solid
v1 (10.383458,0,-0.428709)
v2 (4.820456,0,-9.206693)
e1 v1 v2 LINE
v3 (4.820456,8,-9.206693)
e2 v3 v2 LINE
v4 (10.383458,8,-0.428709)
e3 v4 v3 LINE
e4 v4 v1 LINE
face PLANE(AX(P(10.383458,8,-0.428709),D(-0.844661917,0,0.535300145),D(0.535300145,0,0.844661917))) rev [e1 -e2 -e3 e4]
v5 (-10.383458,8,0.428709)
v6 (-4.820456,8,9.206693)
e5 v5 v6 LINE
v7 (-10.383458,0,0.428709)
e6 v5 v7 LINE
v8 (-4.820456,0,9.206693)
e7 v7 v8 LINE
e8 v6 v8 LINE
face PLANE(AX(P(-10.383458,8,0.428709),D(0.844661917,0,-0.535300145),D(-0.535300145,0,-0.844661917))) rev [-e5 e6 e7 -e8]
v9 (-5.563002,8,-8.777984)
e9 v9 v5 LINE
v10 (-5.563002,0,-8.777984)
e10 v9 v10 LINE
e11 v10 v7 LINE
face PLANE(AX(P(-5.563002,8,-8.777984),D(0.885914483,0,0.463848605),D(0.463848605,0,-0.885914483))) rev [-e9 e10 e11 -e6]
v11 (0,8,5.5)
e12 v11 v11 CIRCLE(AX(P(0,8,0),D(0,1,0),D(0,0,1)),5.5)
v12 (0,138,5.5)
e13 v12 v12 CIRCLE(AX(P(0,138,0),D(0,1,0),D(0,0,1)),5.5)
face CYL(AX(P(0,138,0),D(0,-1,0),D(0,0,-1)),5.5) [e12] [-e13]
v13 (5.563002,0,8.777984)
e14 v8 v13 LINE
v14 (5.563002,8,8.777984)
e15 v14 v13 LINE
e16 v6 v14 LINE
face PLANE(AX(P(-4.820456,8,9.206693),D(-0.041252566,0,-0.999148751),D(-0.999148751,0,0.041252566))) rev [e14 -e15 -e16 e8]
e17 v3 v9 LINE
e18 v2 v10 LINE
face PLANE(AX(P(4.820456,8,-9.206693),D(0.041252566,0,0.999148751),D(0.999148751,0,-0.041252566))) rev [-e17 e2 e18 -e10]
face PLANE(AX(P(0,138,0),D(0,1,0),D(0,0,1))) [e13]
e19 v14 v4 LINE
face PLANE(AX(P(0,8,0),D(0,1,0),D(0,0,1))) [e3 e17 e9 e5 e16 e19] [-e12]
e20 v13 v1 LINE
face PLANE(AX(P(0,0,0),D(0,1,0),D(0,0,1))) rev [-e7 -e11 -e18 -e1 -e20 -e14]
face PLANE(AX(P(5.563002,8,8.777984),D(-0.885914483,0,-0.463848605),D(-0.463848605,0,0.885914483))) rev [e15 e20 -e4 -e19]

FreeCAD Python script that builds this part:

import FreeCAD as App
import Part
import Sketcher
Q = App.Units.Quantity

doc = App.newDocument("Part")
body = doc.addObject("PartDesign::Body", "Body")

# Sketch on XZ plane
sketch1 = body.newObject("Sketcher::SketchObject", "Sketch")
sketch1.AttachmentSupport = (doc.getObject("XZ_Plane"), [""])
sketch1.MapMode = "FlatFace"
sketch1.addGeometry([
    Part.LineSegment(App.Vector(-6, -9, 0), App.Vector(-10, 0, 0)),  # 0
    Part.LineSegment(App.Vector(-10, 0, 0), App.Vector(-5, 9, 0)),  # 1
    Part.LineSegment(App.Vector(-5, 9, 0), App.Vector(6, 9, 0)),  # 2
    Part.LineSegment(App.Vector(6, 9, 0), App.Vector(10, 0, 0)),  # 3
    Part.LineSegment(App.Vector(10, 0, 0), App.Vector(5, -9, 0)),  # 4
    Part.LineSegment(App.Vector(5, -9, 0), App.Vector(-6, -9, 0)),  # 5
], False)
sketch1.addConstraint([
    Sketcher.Constraint("Coincident", 0, 2, 1, 1),
    Sketcher.Constraint("Coincident", 1, 2, 2, 1),
    Sketcher.Constraint("Coincident", 2, 2, 3, 1),
    Sketcher.Constraint("Coincident", 3, 2, 4, 1),
    Sketcher.Constraint("Coincident", 4, 2, 5, 1),
    Sketcher.Constraint("Coincident", 5, 2, 0, 1),
    Sketcher.Constraint("Symmetric", 0, 2, 3, 2, -1, 1),
    Sketcher.Constraint("Symmetric", 1, 2, 4, 2, -1, 1),
    Sketcher.Constraint("Symmetric", 2, 2, 5, 2, -1, 1),
    Sketcher.Constraint("Equal", 0, 1),
    Sketcher.Constraint("Equal", 1, 2),
    Sketcher.Constraint("DistanceX", 0, 2, -1, 1, Q("10.383458 mm")),
    Sketcher.Constraint("DistanceY", -1, 1, 0, 2, Q("0.428709 mm")),
    Sketcher.Constraint("DistanceX", 1, 2, 2, 2, Q("10.383458 mm")),
    Sketcher.Constraint("DistanceY", 2, 2, 1, 2, Q("0.428709 mm")),
])
pad1 = body.newObject("PartDesign::Pad", "Pad")
pad1.Profile = sketch1
pad1.Length = 8
pad1.Reversed = True

# Sketch on XZ plane
sketch2 = body.newObject("Sketcher::SketchObject", "Sketch001")
sketch2.AttachmentSupport = (doc.getObject("XZ_Plane"), [""])
sketch2.MapMode = "FlatFace"
sketch2.AttachmentOffset = App.Placement(App.Vector(0, 0, -8), App.Rotation())
sketch2.addGeometry(Part.Circle(App.Vector(0, 0, 0), App.Vector(0, 0, 1), 6), False)
sketch2.addConstraint([
    Sketcher.Constraint("Coincident", 0, 3, -1, 1),
    Sketcher.Constraint("Diameter", 0, Q("11 mm")),
])
pad2 = body.newObject("PartDesign::Pad", "Pad001")
pad2.Profile = sketch2
pad2.Length = 130
pad2.Reversed = True

doc.recompute()
